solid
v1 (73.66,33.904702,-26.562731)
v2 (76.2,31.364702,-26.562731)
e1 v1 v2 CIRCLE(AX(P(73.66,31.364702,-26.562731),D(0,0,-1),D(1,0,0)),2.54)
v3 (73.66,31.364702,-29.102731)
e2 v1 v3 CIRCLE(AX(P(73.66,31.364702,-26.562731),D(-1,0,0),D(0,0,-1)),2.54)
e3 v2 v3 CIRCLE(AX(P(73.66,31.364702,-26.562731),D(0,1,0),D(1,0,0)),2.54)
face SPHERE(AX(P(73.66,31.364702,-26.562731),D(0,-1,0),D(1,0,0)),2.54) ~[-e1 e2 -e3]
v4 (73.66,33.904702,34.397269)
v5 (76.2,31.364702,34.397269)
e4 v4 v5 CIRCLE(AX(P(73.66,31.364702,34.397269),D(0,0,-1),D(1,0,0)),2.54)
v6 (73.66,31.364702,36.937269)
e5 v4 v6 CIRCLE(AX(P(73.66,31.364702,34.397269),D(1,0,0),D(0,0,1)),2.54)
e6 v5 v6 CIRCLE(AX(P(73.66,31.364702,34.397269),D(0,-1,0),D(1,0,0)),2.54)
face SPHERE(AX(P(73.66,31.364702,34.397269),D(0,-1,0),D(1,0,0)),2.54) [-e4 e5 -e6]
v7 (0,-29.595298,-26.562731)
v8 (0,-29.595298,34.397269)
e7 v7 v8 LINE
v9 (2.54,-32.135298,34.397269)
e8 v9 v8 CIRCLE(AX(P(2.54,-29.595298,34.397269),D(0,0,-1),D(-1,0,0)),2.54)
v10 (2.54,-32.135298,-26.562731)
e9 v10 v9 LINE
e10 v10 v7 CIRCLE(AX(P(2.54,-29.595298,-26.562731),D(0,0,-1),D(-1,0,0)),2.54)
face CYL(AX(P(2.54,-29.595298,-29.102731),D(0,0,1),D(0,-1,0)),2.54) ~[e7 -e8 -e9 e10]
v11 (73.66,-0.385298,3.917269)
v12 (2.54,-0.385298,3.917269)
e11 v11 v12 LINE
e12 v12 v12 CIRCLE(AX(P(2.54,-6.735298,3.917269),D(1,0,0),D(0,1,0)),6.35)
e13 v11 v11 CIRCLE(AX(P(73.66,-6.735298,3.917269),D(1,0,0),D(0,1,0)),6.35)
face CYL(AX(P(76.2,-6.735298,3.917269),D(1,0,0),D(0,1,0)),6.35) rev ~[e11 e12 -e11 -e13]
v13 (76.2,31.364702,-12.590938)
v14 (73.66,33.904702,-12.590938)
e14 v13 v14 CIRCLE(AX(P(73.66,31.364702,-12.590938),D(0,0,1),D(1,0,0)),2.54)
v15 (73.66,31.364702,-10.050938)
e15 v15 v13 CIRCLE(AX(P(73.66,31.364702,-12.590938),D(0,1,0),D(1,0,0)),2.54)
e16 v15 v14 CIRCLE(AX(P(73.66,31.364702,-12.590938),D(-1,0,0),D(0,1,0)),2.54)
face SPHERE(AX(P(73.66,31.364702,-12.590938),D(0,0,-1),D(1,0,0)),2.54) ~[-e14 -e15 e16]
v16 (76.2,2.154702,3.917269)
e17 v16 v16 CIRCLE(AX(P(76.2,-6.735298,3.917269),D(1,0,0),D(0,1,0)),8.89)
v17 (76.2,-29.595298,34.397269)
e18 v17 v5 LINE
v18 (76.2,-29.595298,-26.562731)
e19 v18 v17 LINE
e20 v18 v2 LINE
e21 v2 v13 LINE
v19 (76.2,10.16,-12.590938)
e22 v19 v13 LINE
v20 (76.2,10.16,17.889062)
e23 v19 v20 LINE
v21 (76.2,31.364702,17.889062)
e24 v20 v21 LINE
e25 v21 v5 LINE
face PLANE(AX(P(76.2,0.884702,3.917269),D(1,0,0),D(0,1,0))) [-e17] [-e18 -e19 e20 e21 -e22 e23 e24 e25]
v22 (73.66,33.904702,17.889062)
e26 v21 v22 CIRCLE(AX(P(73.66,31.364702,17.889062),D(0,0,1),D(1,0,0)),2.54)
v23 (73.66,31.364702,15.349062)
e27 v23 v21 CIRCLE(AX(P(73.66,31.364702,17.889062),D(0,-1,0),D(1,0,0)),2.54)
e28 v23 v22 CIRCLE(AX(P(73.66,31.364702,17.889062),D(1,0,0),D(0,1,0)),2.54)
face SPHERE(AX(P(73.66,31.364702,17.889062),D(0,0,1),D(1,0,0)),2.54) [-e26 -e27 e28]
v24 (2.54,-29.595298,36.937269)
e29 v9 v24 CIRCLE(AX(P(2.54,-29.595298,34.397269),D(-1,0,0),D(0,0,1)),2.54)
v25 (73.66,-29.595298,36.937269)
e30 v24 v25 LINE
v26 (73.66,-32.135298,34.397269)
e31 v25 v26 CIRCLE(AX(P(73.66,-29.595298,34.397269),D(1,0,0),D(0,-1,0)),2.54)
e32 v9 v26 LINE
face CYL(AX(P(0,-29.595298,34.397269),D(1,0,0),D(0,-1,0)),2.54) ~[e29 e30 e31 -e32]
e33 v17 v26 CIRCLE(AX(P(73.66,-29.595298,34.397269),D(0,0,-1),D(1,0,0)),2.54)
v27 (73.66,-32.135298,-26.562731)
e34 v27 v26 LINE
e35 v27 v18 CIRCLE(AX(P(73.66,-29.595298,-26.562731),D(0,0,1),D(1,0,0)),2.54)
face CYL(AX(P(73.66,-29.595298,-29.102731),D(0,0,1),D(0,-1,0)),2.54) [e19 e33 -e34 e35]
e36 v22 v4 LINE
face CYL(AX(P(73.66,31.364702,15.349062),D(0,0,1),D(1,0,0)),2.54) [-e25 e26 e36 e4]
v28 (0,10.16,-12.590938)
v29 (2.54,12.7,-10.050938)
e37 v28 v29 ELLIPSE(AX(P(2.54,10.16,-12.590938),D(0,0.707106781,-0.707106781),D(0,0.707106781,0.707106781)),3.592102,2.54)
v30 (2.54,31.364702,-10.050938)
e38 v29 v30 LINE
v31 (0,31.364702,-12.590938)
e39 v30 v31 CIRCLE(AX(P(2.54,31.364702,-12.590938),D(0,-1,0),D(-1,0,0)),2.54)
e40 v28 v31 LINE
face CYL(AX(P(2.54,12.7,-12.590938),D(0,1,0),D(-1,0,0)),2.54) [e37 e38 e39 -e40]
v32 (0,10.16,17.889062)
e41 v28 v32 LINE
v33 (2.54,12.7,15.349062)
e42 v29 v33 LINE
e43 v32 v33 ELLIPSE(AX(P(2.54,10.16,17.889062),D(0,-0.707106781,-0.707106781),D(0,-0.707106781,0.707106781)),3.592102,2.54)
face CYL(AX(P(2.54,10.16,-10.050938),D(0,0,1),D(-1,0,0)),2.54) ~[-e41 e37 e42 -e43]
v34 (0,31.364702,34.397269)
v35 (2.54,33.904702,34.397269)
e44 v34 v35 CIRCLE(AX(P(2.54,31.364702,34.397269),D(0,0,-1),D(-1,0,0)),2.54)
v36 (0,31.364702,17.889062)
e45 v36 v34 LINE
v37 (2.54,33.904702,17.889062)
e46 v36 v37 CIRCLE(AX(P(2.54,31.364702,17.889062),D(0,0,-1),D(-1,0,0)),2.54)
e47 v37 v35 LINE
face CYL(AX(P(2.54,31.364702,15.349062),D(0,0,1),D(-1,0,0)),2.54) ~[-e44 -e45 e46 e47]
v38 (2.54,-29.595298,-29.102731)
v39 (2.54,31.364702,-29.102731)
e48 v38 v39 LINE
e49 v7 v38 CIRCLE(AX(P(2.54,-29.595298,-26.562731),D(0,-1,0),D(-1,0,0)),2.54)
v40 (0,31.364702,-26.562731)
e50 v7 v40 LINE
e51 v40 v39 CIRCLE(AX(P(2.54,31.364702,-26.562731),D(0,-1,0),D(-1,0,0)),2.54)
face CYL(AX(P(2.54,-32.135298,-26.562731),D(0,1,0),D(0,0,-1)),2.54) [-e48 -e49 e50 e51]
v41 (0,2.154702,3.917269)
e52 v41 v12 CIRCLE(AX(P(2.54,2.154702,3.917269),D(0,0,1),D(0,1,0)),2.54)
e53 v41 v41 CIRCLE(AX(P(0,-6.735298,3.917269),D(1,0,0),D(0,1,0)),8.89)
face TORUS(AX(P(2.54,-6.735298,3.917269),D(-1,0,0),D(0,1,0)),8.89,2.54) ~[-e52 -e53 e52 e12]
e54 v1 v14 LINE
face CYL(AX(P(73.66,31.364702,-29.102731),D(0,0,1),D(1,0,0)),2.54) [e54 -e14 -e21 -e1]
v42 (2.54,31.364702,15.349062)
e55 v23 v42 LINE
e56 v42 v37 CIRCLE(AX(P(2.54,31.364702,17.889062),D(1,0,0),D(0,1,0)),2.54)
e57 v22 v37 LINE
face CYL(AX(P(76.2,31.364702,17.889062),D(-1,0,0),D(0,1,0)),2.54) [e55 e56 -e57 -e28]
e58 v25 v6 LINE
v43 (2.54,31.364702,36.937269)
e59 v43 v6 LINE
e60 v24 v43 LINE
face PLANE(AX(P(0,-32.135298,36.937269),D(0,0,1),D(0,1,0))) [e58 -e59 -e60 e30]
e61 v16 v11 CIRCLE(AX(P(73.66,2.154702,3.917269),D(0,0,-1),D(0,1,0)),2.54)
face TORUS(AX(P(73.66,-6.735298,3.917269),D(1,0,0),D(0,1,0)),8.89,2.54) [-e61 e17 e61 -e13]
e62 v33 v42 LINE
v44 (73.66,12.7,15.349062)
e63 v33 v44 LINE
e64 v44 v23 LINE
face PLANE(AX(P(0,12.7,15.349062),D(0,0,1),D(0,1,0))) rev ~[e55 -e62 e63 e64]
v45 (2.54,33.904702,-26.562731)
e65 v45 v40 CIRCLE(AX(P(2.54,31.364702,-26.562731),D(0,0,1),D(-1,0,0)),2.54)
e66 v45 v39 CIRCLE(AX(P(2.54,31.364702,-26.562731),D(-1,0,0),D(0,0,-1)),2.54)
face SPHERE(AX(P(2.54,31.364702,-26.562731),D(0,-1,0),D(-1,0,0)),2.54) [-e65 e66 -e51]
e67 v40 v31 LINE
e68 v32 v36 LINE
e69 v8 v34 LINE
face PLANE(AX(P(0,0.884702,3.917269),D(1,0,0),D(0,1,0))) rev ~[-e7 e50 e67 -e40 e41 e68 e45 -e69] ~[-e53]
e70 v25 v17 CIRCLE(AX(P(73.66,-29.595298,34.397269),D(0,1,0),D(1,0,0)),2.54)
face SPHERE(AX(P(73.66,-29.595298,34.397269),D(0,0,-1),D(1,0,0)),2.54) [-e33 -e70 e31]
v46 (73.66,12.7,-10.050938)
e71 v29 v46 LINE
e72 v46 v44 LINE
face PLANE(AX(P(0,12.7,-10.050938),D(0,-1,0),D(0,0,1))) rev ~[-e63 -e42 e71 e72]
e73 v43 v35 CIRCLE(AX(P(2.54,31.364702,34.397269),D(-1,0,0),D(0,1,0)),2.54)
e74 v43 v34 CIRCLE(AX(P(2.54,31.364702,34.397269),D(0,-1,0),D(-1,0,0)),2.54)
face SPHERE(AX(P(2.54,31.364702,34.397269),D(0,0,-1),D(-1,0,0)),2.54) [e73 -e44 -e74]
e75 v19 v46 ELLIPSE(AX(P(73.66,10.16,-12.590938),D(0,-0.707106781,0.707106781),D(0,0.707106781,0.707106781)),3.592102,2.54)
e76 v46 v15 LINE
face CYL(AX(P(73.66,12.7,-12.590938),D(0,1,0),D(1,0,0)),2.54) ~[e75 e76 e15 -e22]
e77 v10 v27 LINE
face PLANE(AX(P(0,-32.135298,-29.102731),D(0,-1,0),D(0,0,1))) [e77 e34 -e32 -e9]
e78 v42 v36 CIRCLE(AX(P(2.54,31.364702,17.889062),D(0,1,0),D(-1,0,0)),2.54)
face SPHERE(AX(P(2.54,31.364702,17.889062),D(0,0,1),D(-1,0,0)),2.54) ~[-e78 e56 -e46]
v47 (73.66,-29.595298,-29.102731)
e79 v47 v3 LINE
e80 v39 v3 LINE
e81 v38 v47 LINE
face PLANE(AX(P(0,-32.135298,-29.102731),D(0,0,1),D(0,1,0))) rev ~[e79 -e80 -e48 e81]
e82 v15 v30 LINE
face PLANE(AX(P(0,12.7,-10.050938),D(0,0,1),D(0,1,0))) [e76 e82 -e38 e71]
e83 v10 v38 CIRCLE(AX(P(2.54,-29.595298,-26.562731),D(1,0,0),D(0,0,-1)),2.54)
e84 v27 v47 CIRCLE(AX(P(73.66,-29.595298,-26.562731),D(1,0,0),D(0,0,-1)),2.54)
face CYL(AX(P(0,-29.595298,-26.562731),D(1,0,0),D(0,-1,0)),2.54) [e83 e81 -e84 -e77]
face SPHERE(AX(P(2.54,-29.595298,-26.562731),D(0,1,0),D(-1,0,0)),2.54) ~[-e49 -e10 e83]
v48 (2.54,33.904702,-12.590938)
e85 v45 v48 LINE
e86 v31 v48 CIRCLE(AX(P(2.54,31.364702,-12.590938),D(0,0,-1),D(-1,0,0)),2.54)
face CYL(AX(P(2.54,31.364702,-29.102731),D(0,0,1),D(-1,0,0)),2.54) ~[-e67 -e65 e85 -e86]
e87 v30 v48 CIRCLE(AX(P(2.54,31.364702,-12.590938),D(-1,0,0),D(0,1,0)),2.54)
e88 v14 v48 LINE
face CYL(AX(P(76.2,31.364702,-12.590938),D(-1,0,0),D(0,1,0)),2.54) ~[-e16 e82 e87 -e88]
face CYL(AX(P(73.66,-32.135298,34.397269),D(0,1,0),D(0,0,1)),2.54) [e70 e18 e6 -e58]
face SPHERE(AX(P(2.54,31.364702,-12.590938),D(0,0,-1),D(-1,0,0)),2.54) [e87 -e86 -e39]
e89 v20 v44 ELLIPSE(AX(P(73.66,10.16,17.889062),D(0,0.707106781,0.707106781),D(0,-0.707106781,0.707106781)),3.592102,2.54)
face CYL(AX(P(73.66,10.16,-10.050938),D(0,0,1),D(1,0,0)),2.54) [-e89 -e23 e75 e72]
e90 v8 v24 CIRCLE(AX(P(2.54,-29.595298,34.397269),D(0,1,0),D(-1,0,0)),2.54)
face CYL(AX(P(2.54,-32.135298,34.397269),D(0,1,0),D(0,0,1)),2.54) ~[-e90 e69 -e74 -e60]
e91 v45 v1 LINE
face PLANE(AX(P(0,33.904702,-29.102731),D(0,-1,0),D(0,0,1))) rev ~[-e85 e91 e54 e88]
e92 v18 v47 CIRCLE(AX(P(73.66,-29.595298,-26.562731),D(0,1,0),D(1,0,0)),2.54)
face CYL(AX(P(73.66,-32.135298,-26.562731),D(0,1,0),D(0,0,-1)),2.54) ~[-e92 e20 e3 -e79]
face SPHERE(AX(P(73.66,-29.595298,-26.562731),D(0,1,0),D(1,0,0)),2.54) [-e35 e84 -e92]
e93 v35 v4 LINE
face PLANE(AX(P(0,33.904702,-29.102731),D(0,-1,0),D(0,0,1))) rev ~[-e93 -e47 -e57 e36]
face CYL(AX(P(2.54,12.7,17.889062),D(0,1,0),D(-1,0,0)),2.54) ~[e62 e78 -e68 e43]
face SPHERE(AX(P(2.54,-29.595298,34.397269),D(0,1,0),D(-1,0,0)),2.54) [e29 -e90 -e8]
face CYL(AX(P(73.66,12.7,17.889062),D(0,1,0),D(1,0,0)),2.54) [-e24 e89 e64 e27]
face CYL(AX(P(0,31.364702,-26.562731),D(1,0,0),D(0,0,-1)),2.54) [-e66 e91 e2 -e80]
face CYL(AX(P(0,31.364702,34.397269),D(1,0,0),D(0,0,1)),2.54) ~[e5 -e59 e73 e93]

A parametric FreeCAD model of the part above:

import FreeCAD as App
import Part
import Sketcher

V = App.Vector
Q = App.Units.Quantity


def edges_at(feature, points):
    """Names of the edges that pass closest to the given points."""
    edges = feature.Shape.Edges
    near = lambda p: min(range(len(edges)), key=lambda i: edges[i].distToShape(Part.Vertex(*p))[0])
    return sorted({f"Edge{near(p) + 1}" for p in points})

doc = App.newDocument("Part")
body = doc.addObject("PartDesign::Body", "Body")

sketch1 = body.newObject("Sketcher::SketchObject", "Sketch")
sketch1.AttachmentSupport = (doc.getObject("YZ_Plane"), [""])
sketch1.MapMode = "FlatFace"
sketch1.addGeometry(Part.LineSegment(V(-32, 37, 0), V(-32, -29, 0)), False)
sketch1.addGeometry(Part.LineSegment(V(-32, -29, 0), V(34, -29, 0)), False)
sketch1.addGeometry(Part.LineSegment(V(34, -29, 0), V(34, 37, 0)), False)
sketch1.addGeometry(Part.LineSegment(V(34, 37, 0), V(-32, 37, 0)), False)
sketch1.addConstraint(Sketcher.Constraint("Coincident", 0, 2, 1, 1))
sketch1.addConstraint(Sketcher.Constraint("Coincident", 1, 2, 2, 1))
sketch1.addConstraint(Sketcher.Constraint("Coincident", 2, 2, 3, 1))
sketch1.addConstraint(Sketcher.Constraint("Coincident", 3, 2, 0, 1))
sketch1.addConstraint(Sketcher.Constraint("Vertical", 0))
sketch1.addConstraint(Sketcher.Constraint("Horizontal", 1))
sketch1.addConstraint(Sketcher.Constraint("Vertical", 2))
sketch1.addConstraint(Sketcher.Constraint("Horizontal", 3))
sketch1.addConstraint(Sketcher.Constraint("Equal", 3, 0))
sketch1.addConstraint(Sketcher.Constraint("DistanceX", 1, 1, 1, 2, Q("2.6 in")))
sketch1.addConstraint(Sketcher.Constraint("DistanceY", 0, 2, -1, 1, 29.102731))
sketch1.addConstraint(Sketcher.Constraint("DistanceX", 0, 2, -1, 1, 32.135298))
pad1 = body.newObject("PartDesign::Pad", "Pad")
pad1.Profile = sketch1
pad1.Length = Q("3 in")

sketch2 = body.newObject("Sketcher::SketchObject", "Sketch001")
sketch2.AttachmentSupport = (doc.getObject("YZ_Plane"), [""])
sketch2.MapMode = "FlatFace"
sketch2.addGeometry(Part.LineSegment(V(13, 15, 0), V(13, -10, 0)), False)
sketch2.addGeometry(Part.LineSegment(V(13, -10, 0), V(51, -10, 0)), False)
sketch2.addGeometry(Part.LineSegment(V(51, -10, 0), V(51, 15, 0)), False)
sketch2.addGeometry(Part.LineSegment(V(51, 15, 0), V(13, 15, 0)), False)
sketch2.addConstraint(Sketcher.Constraint("Coincident", 0, 2, 1, 1))
sketch2.addConstraint(Sketcher.Constraint("Coincident", 1, 2, 2, 1))
sketch2.addConstraint(Sketcher.Constraint("Coincident", 2, 2, 3, 1))
sketch2.addConstraint(Sketcher.Constraint("Coincident", 3, 2, 0, 1))
sketch2.addConstraint(Sketcher.Constraint("Vertical", 0))
sketch2.addConstraint(Sketcher.Constraint("Horizontal", 1))
sketch2.addConstraint(Sketcher.Constraint("Vertical", 2))
sketch2.addConstraint(Sketcher.Constraint("Horizontal", 3))
sketch2.addConstraint(Sketcher.Constraint("DistanceY", 0, 2, 0, 1, Q("1 in")))
sketch2.addConstraint(Sketcher.Constraint("DistanceX", 1, 1, 1, 2, Q("1.5 in")))
sketch2.addConstraint(Sketcher.Constraint("DistanceX", -1, 1, 1, 2, Q("2 in")))
sketch2.addConstraint(Sketcher.Constraint("DistanceY", 0, 2, -1, 1, 10.050938))
pocket1 = body.newObject("PartDesign::Pocket", "Pocket")
pocket1.Profile = sketch2
pocket1.Length = Q("3 in")
pocket1.Reversed = True

sketch3 = body.newObject("Sketcher::SketchObject", "Sketch002")
sketch3.AttachmentSupport = (doc.getObject("YZ_Plane"), [""])
sketch3.MapMode = "FlatFace"
sketch3.AttachmentOffset = App.Placement(V(0, 0, 3 * 25.4), App.Rotation())
sketch3.addGeometry(Part.Circle(V(-7, 4, 0), V(0, 0, 1), 6), False)
sketch3.addConstraint(Sketcher.Constraint("Diameter", 0, Q("0.5 in")))
sketch3.addConstraint(Sketcher.Constraint("DistanceY", -1, 1, 0, 3, 3.917269))
sketch3.addConstraint(Sketcher.Constraint("DistanceX", 0, 3, -1, 1, 6.735298))
pocket2 = body.newObject("PartDesign::Pocket", "Pocket001")
pocket2.Profile = sketch3
pocket2.Length = Q("4 in")
doc.recompute()

fillet = body.newObject("PartDesign::Fillet", "Fillet")
fillet.Base = (pocket2, edges_at(pocket2, [
    (0, 33.905, 26.143),
    (0, 0.885, 36.937),
    (0, 0.885, -29.103),
    (0, -32.135, 3.917),
    (0, 33.905, -19.577),
    (0, 23.302, -10.051),
    (0, 12.7, 2.649),
    (0, 23.302, 15.349),
    (0, -13.085, 3.917),
    (76.2, 0.885, -29.103),
    (76.2, -32.135, 3.917),
    (76.2, 33.905, -19.577),
    (76.2, 0.885, 36.937),
    (76.2, 23.302, -10.051),
    (76.2, 33.905, 26.143),
    (76.2, 12.7, 2.649),
    (76.2, 23.302, 15.349),
    (76.2, -13.085, 3.917),
    (38.1, 33.905, 36.937),
    (38.1, 33.905, 15.349),
    (38.1, 33.905, -10.051),
    (38.1, 33.905, -29.103),
    (38.1, -32.135, -29.103),
    (38.1, -32.135, 36.937),
]))
fillet.Radius = Q("0.1 in")

doc.recompute()
